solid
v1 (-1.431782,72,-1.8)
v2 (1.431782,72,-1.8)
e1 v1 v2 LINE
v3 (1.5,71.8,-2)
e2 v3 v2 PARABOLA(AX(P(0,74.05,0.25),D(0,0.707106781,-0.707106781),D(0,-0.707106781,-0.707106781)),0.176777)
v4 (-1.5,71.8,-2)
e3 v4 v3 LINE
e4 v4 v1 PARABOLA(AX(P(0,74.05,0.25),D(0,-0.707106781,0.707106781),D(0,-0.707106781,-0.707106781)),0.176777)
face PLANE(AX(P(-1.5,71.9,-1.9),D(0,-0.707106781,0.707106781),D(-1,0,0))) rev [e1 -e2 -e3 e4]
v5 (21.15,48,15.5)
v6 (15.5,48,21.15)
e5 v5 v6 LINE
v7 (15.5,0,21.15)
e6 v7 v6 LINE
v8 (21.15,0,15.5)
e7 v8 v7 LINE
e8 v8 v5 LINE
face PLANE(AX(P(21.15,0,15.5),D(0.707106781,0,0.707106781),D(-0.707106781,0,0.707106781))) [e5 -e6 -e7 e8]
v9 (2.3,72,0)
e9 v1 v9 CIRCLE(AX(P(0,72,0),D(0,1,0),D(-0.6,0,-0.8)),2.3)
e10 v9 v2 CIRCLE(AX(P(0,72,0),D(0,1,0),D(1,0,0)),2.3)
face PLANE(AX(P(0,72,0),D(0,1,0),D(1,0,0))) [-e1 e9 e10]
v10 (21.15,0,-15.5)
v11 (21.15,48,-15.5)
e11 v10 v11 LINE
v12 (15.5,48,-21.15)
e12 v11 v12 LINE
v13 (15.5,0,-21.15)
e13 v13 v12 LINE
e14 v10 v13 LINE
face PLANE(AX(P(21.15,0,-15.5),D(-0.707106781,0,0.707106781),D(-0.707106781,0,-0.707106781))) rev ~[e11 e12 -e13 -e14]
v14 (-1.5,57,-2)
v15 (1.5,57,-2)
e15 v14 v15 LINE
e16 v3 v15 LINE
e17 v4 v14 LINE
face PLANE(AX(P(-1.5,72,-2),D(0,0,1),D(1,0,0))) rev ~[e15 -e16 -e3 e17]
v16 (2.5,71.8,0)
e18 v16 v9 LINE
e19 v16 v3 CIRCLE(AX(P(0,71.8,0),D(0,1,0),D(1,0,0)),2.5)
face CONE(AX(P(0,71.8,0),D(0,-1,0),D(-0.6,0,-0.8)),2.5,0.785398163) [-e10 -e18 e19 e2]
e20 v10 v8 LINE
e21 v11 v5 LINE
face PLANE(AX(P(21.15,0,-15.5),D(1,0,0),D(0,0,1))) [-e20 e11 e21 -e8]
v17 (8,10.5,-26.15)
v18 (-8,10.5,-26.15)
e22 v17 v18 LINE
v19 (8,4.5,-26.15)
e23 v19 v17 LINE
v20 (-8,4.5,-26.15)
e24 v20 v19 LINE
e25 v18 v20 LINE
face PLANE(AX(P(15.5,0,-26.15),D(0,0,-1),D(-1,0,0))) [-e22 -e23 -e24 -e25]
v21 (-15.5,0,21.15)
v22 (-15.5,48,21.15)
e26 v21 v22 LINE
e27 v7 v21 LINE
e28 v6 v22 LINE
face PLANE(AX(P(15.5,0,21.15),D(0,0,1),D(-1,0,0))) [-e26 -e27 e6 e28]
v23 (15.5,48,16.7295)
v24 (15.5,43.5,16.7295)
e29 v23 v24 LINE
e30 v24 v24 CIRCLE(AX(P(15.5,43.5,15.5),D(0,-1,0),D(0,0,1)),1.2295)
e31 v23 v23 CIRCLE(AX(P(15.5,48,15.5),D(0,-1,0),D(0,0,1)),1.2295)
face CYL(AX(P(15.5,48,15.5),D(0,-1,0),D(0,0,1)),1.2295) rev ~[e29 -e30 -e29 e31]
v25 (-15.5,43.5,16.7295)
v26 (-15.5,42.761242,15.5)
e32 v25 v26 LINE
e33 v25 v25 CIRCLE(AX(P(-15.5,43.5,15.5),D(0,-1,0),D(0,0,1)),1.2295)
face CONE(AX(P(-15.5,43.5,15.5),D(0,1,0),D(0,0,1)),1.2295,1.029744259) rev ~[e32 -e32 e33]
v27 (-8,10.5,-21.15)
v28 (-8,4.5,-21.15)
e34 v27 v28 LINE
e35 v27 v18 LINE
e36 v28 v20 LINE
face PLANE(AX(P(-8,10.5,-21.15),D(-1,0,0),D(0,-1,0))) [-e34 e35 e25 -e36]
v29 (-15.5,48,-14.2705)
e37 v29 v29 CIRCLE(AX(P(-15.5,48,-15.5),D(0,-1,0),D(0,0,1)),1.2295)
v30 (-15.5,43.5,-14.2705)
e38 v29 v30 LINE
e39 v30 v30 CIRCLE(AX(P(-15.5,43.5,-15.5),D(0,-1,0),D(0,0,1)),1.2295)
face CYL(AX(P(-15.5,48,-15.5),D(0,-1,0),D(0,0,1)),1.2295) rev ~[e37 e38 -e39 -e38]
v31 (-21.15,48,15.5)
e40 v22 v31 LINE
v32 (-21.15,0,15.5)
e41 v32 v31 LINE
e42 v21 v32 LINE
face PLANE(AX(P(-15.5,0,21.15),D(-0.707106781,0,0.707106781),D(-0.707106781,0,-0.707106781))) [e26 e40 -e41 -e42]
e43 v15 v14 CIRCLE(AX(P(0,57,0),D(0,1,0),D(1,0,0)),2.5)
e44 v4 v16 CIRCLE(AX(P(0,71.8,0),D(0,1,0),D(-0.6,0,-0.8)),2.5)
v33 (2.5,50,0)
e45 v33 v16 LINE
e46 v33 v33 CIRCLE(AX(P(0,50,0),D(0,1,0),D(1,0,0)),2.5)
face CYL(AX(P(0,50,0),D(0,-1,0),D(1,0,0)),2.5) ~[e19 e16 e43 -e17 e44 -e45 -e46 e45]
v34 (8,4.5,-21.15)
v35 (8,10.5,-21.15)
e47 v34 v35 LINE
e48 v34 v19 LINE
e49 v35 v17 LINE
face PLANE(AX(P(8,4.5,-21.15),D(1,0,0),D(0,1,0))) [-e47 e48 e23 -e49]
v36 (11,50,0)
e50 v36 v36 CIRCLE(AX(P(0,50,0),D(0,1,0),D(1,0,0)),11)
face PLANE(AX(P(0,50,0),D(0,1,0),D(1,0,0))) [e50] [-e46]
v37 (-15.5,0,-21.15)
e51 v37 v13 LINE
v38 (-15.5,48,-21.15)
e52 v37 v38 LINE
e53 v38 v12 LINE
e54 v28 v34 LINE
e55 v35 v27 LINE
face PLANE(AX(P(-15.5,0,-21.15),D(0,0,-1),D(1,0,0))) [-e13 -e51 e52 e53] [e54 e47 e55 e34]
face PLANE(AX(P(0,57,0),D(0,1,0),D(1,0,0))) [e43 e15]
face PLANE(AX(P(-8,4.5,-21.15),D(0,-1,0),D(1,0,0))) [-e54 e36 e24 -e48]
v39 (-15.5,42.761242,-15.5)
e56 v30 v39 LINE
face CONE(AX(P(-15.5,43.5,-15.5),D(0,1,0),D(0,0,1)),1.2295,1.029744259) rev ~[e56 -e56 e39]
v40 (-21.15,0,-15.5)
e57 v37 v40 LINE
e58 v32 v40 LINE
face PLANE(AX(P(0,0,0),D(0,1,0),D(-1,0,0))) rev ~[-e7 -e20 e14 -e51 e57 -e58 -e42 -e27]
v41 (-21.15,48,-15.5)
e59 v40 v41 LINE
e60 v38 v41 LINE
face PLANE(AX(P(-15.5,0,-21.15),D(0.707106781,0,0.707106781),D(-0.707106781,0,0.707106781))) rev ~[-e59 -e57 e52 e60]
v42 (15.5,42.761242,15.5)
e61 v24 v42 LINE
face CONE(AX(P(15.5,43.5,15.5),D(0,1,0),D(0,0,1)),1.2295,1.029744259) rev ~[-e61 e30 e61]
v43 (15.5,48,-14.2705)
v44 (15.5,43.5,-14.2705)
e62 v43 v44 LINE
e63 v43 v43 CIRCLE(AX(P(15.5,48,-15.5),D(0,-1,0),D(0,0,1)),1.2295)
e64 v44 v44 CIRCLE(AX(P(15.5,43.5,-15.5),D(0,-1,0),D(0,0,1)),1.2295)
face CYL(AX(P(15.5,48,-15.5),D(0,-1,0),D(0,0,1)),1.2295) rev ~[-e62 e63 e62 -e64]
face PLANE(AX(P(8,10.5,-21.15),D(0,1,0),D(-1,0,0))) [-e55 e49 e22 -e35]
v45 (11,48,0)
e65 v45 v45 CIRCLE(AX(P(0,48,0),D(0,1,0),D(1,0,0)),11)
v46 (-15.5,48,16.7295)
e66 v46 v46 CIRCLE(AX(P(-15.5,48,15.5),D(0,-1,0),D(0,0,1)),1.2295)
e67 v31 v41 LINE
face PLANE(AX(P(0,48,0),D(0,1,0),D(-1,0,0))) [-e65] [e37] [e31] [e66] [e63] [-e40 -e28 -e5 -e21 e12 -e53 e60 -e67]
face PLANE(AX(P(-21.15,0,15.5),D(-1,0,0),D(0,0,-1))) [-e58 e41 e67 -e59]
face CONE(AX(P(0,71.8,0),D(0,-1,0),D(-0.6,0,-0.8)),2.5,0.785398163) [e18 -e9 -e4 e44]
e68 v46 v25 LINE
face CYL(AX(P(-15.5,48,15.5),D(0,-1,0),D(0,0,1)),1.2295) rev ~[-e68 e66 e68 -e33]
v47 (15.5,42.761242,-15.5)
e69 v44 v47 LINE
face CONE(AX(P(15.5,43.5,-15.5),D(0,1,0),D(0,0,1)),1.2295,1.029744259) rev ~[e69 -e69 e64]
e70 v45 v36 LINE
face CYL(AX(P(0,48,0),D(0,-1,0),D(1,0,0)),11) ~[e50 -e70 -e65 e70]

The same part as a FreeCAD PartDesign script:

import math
import FreeCAD as App
import Part
import Sketcher
Q = App.Units.Quantity


def edges_at(feature, points):
    """Names of the edges that pass closest to the given points."""
    edges = feature.Shape.Edges
    near = lambda p: min(range(len(edges)), key=lambda i: edges[i].distToShape(Part.Vertex(*p))[0])
    return sorted({f"Edge{near(p) + 1}" for p in points})


def add_polygon(sketch, points):
    """Adds a closed chain of lines whose ends are joined by coincident constraints."""
    first, n = sketch.GeometryCount, len(points)
    for a, b in zip(points, points[1:] + points[:1]):
        sketch.addGeometry(Part.LineSegment(App.Vector(*a, 0), App.Vector(*b, 0)), False)
    for i in range(n):
        sketch.addConstraint(Sketcher.Constraint("Coincident", first + i, 2, first + (i + 1) % n, 1))

doc = App.newDocument("Part")
body = doc.addObject("PartDesign::Body", "Body")

# Sketch on XZ plane
sketch1 = doc.addObject("Sketcher::SketchObject", "Sketch")
body.addObject(sketch1)
sketch1.AttachmentSupport = (doc.XZ_Plane, [""])
sketch1.MapMode = "FlatFace"
add_polygon(sketch1, [(-16, 21), (16, 21), (21, 16), (21, -16), (16, -21), (-16, -21), (-21, -16), (-21, 16)])  # lines 0-7
sketch1.addConstraint([
    Sketcher.Constraint("Horizontal", 0),
    Sketcher.Constraint("Vertical", 2),
    Sketcher.Constraint("Horizontal", 4),
    Sketcher.Constraint("Vertical", 6),
    Sketcher.Constraint("Symmetric", 0, 2, 4, 2, -1, 1),
    Sketcher.Constraint("Symmetric", 1, 2, 5, 2, -1, 1),
    Sketcher.Constraint("Perpendicular", 1, 3),
    Sketcher.Constraint("Perpendicular", 5, 7),
    Sketcher.Constraint("Horizontal", 2, 2, 5, 2),
    Sketcher.Constraint("Horizontal", 1, 2, 6, 2),
    Sketcher.Constraint("Vertical", 0, 2, 3, 2),
    Sketcher.Constraint("Equal", 4, 2),
    Sketcher.Constraint("DistanceX", 0, 1, 0, 2, Q("31 mm")),
    Sketcher.Constraint("DistanceY", 3, 2, 0, 2, Q("42.3 mm")),
])
pad1 = doc.addObject("PartDesign::Pad", "Pad")
body.addObject(pad1)
pad1.Profile = sketch1
pad1.Length = 48
pad1.Reversed = True

# Sketch on XZ plane
sketch2 = doc.addObject("Sketcher::SketchObject", "Sketch001")
body.addObject(sketch2)
sketch2.AttachmentSupport = (doc.XZ_Plane, [""])
sketch2.MapMode = "FlatFace"
sketch2.AttachmentOffset = App.Placement(App.Vector(0, 0, -48), App.Rotation())
sketch2.addGeometry(Part.Circle(App.Vector(0, 0, 0), App.Vector(0, 0, 1), 11), False)
sketch2.addConstraint([
    Sketcher.Constraint("Coincident", 0, 3, -1, 1),
    Sketcher.Constraint("Diameter", 0, Q("22 mm")),
])
pad2 = doc.addObject("PartDesign::Pad", "Pad001")
body.addObject(pad2)
pad2.Profile = sketch2
pad2.Length = 2
pad2.Reversed = True

# Sketch on XZ plane
sketch3 = doc.addObject("Sketcher::SketchObject", "Sketch002")
body.addObject(sketch3)
sketch3.AttachmentSupport = (doc.XZ_Plane, [""])
sketch3.MapMode = "FlatFace"
sketch3.AttachmentOffset = App.Placement(App.Vector(0, 0, -50), App.Rotation())
sketch3.addGeometry(Part.Circle(App.Vector(0, 0, 0), App.Vector(0, 0, 1), 2.5), False)
sketch3.addConstraint([
    Sketcher.Constraint("Coincident", 0, 3, -1, 1),
    Sketcher.Constraint("Diameter", 0, Q("5 mm")),
])
pad3 = doc.addObject("PartDesign::Pad", "Pad002")
body.addObject(pad3)
pad3.Profile = sketch3
pad3.Length = 22
pad3.Reversed = True

# Sketch on XZ plane
sketch4 = doc.addObject("Sketcher::SketchObject", "Sketch003")
body.addObject(sketch4)
sketch4.AttachmentSupport = (doc.XZ_Plane, [""])
sketch4.MapMode = "FlatFace"
sketch4.AttachmentOffset = App.Placement(App.Vector(0, 0, -72), App.Rotation())
sketch4.addGeometry([
    Part.LineSegment(App.Vector(-1.5, -2, 0), App.Vector(1.5, -2, 0)),
    Part.ArcOfCircle(Part.Circle(App.Vector(0, 0, 0), App.Vector(0, 0, 1), 2.5), math.radians(-127), math.radians(-53)),
], False)
sketch4.addConstraint([
    Sketcher.Constraint("Coincident", 0, 1, 1, 1),
    Sketcher.Constraint("Coincident", 1, 2, 0, 2),
    Sketcher.Constraint("Horizontal", 0),
    Sketcher.Constraint("Coincident", 1, 3, -1, 1),
    Sketcher.Constraint("Radius", 1, Q("2.5 mm")),
    Sketcher.Constraint("DistanceY", 0, 1, -1, 1, Q("2 mm")),
])
pocket1 = doc.addObject("PartDesign::Pocket", "Pocket")
body.addObject(pocket1)
pocket1.Profile = sketch4
pocket1.Length = 15
pocket1.Reversed = True
doc.recompute()

chamfer = doc.addObject("PartDesign::Chamfer", "Chamfer")
body.addObject(chamfer)
chamfer.Base = (pocket1, edges_at(pocket1, [(-1.118, 72, 2.236), (2.236, 72, -1.118), (0, 72, -2)]))
chamfer.Size = 0.2

# Sketch on XZ plane
sketch5 = doc.addObject("Sketcher::SketchObject", "Sketch004")
body.addObject(sketch5)
sketch5.AttachmentSupport = (doc.XZ_Plane, [""])
sketch5.MapMode = "FlatFace"
sketch5.AttachmentOffset = App.Placement(App.Vector(0, 0, -48), App.Rotation())
sketch5.addGeometry([
    Part.Circle(App.Vector(-15.5, -15.5, 0), App.Vector(0, 0, 1), 1.2),
    Part.Circle(App.Vector(15.5, -15.5, 0), App.Vector(0, 0, 1), 1.2),
    Part.Circle(App.Vector(-15.5, 15.5, 0), App.Vector(0, 0, 1), 1.2),
    Part.Circle(App.Vector(15.5, 15.5, 0), App.Vector(0, 0, 1), 1.2),
], False)
sketch5.addConstraint([
    Sketcher.Constraint("Equal", 0, 1),
    Sketcher.Constraint("Equal", 1, 2),
    Sketcher.Constraint("Equal", 2, 3),
    Sketcher.Constraint("Symmetric", 1, 3, 2, 3, -1, 1),
    Sketcher.Constraint("Symmetric", 0, 3, 3, 3, -1, 1),
    Sketcher.Constraint("Symmetric", 0, 3, 1, 3, -2),
    Sketcher.Constraint("Diameter", 0, Q("2.459 mm")),
    Sketcher.Constraint("DistanceX", 0, 3, 1, 3, Q("31 mm")),
    Sketcher.Constraint("DistanceY", 0, 3, 2, 3, Q("31 mm")),
])
doc.recompute()
hole = doc.addObject("PartDesign::Hole", "Hole")
body.addObject(hole)
hole.Profile = sketch5
hole.ThreadType = "None"
hole.Diameter = 2.459
hole.DepthType = "Dimension"
hole.Depth = 4.5
hole.DrillPoint = "Angled"
hole.DrillPointAngle = 118
hole.Reversed = True

# Sketch on XY plane
sketch6 = doc.addObject("Sketcher::SketchObject", "Sketch005")
body.addObject(sketch6)
sketch6.AttachmentSupport = (doc.XY_Plane, [""])
sketch6.MapMode = "FlatFace"
sketch6.AttachmentOffset = App.Placement(App.Vector(0, 0, -21.15), App.Rotation())
add_polygon(sketch6, [(-8, 10), (8, 10), (8, 4), (-8, 4)])  # lines 0-3
sketch6.addConstraint([
    Sketcher.Constraint("Horizontal", 0),
    Sketcher.Constraint("Vertical", 1),
    Sketcher.Constraint("Horizontal", 2),
    Sketcher.Constraint("Vertical", 3),
    Sketcher.Constraint("DistanceX", 0, 1, 0, 2, Q("16 mm")),
    Sketcher.Constraint("DistanceY", 1, 2, 1, 1, Q("6 mm")),
    Sketcher.Constraint("DistanceY", -1, 1, 0, 2, Q("10.5 mm")),
    Sketcher.Constraint("DistanceX", -1, 1, 0, 2, Q("8 mm")),
])
pad4 = doc.addObject("PartDesign::Pad", "Pad003")
body.addObject(pad4)
pad4.Profile = sketch6
pad4.Length = 5
pad4.Reversed = True

doc.recompute()
